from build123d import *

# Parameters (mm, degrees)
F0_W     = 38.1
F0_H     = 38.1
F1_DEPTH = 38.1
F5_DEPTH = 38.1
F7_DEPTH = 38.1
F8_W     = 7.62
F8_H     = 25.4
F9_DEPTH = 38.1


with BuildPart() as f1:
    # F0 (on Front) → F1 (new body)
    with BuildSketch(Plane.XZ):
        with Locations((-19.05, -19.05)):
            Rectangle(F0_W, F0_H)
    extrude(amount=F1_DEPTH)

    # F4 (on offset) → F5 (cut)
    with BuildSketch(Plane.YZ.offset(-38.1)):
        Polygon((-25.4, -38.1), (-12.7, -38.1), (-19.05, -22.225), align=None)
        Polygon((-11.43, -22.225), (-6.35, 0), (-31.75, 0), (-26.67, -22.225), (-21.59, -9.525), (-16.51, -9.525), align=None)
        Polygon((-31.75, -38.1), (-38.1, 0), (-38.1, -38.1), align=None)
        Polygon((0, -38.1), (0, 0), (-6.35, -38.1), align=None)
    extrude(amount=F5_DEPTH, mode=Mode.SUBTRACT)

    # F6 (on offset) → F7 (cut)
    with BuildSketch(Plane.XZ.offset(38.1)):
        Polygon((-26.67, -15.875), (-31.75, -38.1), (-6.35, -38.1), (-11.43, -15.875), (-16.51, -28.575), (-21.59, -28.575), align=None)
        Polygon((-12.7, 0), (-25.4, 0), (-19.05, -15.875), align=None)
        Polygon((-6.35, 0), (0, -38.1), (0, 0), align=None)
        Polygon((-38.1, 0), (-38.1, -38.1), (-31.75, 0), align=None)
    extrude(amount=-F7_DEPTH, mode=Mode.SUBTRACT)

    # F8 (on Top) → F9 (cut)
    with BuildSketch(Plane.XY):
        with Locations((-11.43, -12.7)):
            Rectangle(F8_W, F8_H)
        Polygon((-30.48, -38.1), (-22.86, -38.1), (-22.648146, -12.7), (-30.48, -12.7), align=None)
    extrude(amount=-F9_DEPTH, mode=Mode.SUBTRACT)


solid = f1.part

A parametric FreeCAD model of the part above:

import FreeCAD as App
import Part
import Sketcher
from FreeCAD import Vector
Q = App.Units.Quantity

doc = App.newDocument("Part")
body = doc.addObject("PartDesign::Body", "Body")

sketch1 = body.newObject("Sketcher::SketchObject", "Sketch")
sketch1.AttachmentSupport = (doc.getObject("XZ_Plane"), [""])
sketch1.MapMode = "FlatFace"
sketch1.addGeometry([
    Part.LineSegment(Vector(-38, 0, 0), Vector(-38, -38, 0)),
    Part.LineSegment(Vector(-38, -38, 0), Vector(0, -38, 0)),
    Part.LineSegment(Vector(0, -38, 0), Vector(0, 0, 0)),
    Part.LineSegment(Vector(0, 0, 0), Vector(-38, 0, 0)),
], False)
sketch1.addConstraint([
    Sketcher.Constraint("Coincident", 0, 2, 1, 1),
    Sketcher.Constraint("Coincident", 1, 2, 2, 1),
    Sketcher.Constraint("Coincident", 2, 2, 3, 1),
    Sketcher.Constraint("Coincident", 3, 2, 0, 1),
    Sketcher.Constraint("Vertical", 0),
    Sketcher.Constraint("Horizontal", 1),
    Sketcher.Constraint("Vertical", 2),
    Sketcher.Constraint("Horizontal", 3),
    Sketcher.Constraint("Coincident", 2, 2, -1, 1),
    Sketcher.Constraint("Equal", 3, 0),
    Sketcher.Constraint("DistanceX", 1, 1, 1, 2, Q("1.5 in")),
])
pad1 = body.newObject("PartDesign::Pad", "Pad")
pad1.Profile = sketch1
pad1.Length = Q("1.5 in")

sketch2 = body.newObject("Sketcher::SketchObject", "Sketch001")
sketch2.AttachmentSupport = (doc.getObject("YZ_Plane"), [""])
sketch2.MapMode = "FlatFace"
sketch2.AttachmentOffset = App.Placement(Vector(0, 0, -1.5 * 25.4), App.Rotation())
sketch2.addGeometry([
    Part.LineSegment(Vector(-25, -38, 0), Vector(-13, -38, 0)),
    Part.LineSegment(Vector(-13, -38, 0), Vector(-19, -22, 0)),
    Part.LineSegment(Vector(-19, -22, 0), Vector(-25, -38, 0)),
    Part.LineSegment(Vector(-11, -22, 0), Vector(-6, 0, 0)),
    Part.LineSegment(Vector(-6, 0, 0), Vector(-32, 0, 0)),
    Part.LineSegment(Vector(-32, 0, 0), Vector(-27, -22, 0)),
    Part.LineSegment(Vector(-27, -22, 0), Vector(-22, -10, 0)),
    Part.LineSegment(Vector(-22, -10, 0), Vector(-17, -10, 0)),
    Part.LineSegment(Vector(-17, -10, 0), Vector(-11, -22, 0)),
    Part.LineSegment(Vector(-32, -38, 0), Vector(-38, 0, 0)),
    Part.LineSegment(Vector(-38, 0, 0), Vector(-38, -38, 0)),
    Part.LineSegment(Vector(-38, -38, 0), Vector(-32, -38, 0)),
    Part.LineSegment(Vector(0, -38, 0), Vector(0, 0, 0)),
    Part.LineSegment(Vector(0, 0, 0), Vector(-6, -38, 0)),
    Part.LineSegment(Vector(-6, -38, 0), Vector(0, -38, 0)),
], False)
sketch2.addConstraint([
    Sketcher.Constraint("Coincident", 0, 2, 1, 1),
    Sketcher.Constraint("Coincident", 1, 2, 2, 1),
    Sketcher.Constraint("Coincident", 2, 2, 0, 1),
    Sketcher.Constraint("Coincident", 3, 2, 4, 1),
    Sketcher.Constraint("Coincident", 4, 2, 5, 1),
    Sketcher.Constraint("Coincident", 5, 2, 6, 1),
    Sketcher.Constraint("Coincident", 6, 2, 7, 1),
    Sketcher.Constraint("Coincident", 7, 2, 8, 1),
    Sketcher.Constraint("Coincident", 8, 2, 3, 1),
    Sketcher.Constraint("Coincident", 9, 2, 10, 1),
    Sketcher.Constraint("Coincident", 10, 2, 11, 1),
    Sketcher.Constraint("Coincident", 11, 2, 9, 1),
    Sketcher.Constraint("Coincident", 12, 2, 13, 1),
    Sketcher.Constraint("Coincident", 13, 2, 14, 1),
    Sketcher.Constraint("Coincident", 14, 2, 12, 1),
    Sketcher.Constraint("Horizontal", 0),
    Sketcher.Constraint("Horizontal", 4),
    Sketcher.Constraint("Horizontal", 7),
    Sketcher.Constraint("Vertical", 10),
    Sketcher.Constraint("Horizontal", 11),
    Sketcher.Constraint("Vertical", 12),
    Sketcher.Constraint("Horizontal", 14),
    Sketcher.Constraint("Coincident", 12, 2, -1, 1),
    Sketcher.Constraint("PointOnObject", 3, 2, -1),
    Sketcher.Constraint("PointOnObject", 9, 2, -1),
    Sketcher.Constraint("Parallel", 2, 6),
    Sketcher.Constraint("Parallel", 1, 8),
    Sketcher.Constraint("Horizontal", 1, 2, 5, 2),
    Sketcher.Constraint("Horizontal", 5, 2, 8, 2),
    Sketcher.Constraint("Horizontal", 2, 2, 10, 2),
    Sketcher.Constraint("Horizontal", 11, 2, 13, 2),
    Sketcher.Constraint("Vertical", 4, 2, 11, 2),
    Sketcher.Constraint("Vertical", 3, 2, 13, 2),
    Sketcher.Constraint("Equal", 11, 14),
    Sketcher.Constraint("Equal", 1, 2),
    Sketcher.Constraint("Equal", 3, 5),
    Sketcher.Constraint("DistanceX", 4, 2, 4, 1, Q("1 in")),
    Sketcher.Constraint("DistanceX", 0, 1, 0, 2, Q("0.5 in")),
    Sketcher.Constraint("DistanceX", 7, 1, 7, 2, Q("0.2 in")),
    Sketcher.Constraint("DistanceY", 10, 2, 10, 1, Q("1.5 in")),
    Sketcher.Constraint("DistanceX", 2, 2, -1, 1, Q("1 in")),
    Sketcher.Constraint("DistanceX", 10, 2, 0, 2, Q("1 in")),
    Sketcher.Constraint("DistanceX", 5, 2, 1, 2, Q("0.3 in")),
    Sketcher.Constraint("DistanceY", 1, 2, 6, 2, Q("0.5 in")),
])
pocket1 = body.newObject("PartDesign::Pocket", "Pocket")
pocket1.Profile = sketch2
pocket1.Length = Q("1.5 in")
pocket1.Reversed = True

sketch3 = body.newObject("Sketcher::SketchObject", "Sketch002")
sketch3.AttachmentSupport = (doc.getObject("XZ_Plane"), [""])
sketch3.MapMode = "FlatFace"
sketch3.AttachmentOffset = App.Placement(Vector(0, 0, 1.5 * 25.4), App.Rotation())
sketch3.addGeometry([
    Part.LineSegment(Vector(-27, -16, 0), Vector(-32, -38, 0)),
    Part.LineSegment(Vector(-32, -38, 0), Vector(-6, -38, 0)),
    Part.LineSegment(Vector(-6, -38, 0), Vector(-11, -16, 0)),
    Part.LineSegment(Vector(-11, -16, 0), Vector(-17, -29, 0)),
    Part.LineSegment(Vector(-17, -29, 0), Vector(-22, -29, 0)),
    Part.LineSegment(Vector(-22, -29, 0), Vector(-27, -16, 0)),
    Part.LineSegment(Vector(-13, 0, 0), Vector(-25, 0, 0)),
    Part.LineSegment(Vector(-25, 0, 0), Vector(-19, -16, 0)),
    Part.LineSegment(Vector(-19, -16, 0), Vector(-13, 0, 0)),
    Part.LineSegment(Vector(-6, 0, 0), Vector(0, -38, 0)),
    Part.LineSegment(Vector(0, -38, 0), Vector(0, 0, 0)),
    Part.LineSegment(Vector(0, 0, 0), Vector(-6, 0, 0)),
    Part.LineSegment(Vector(-38, 0, 0), Vector(-38, -38, 0)),
    Part.LineSegment(Vector(-38, -38, 0), Vector(-32, 0, 0)),
    Part.LineSegment(Vector(-32, 0, 0), Vector(-38, 0, 0)),
], False)
sketch3.addConstraint([
    Sketcher.Constraint("Coincident", 0, 2, 1, 1),
    Sketcher.Constraint("Coincident", 1, 2, 2, 1),
    Sketcher.Constraint("Coincident", 2, 2, 3, 1),
    Sketcher.Constraint("Coincident", 3, 2, 4, 1),
    Sketcher.Constraint("Coincident", 4, 2, 5, 1),
    Sketcher.Constraint("Coincident", 5, 2, 0, 1),
    Sketcher.Constraint("Coincident", 6, 2, 7, 1),
    Sketcher.Constraint("Coincident", 7, 2, 8, 1),
    Sketcher.Constraint("Coincident", 8, 2, 6, 1),
    Sketcher.Constraint("Coincident", 9, 2, 10, 1),
    Sketcher.Constraint("Coincident", 10, 2, 11, 1),
    Sketcher.Constraint("Coincident", 11, 2, 9, 1),
    Sketcher.Constraint("Coincident", 12, 2, 13, 1),
    Sketcher.Constraint("Coincident", 13, 2, 14, 1),
    Sketcher.Constraint("Coincident", 14, 2, 12, 1),
    Sketcher.Constraint("Horizontal", 1),
    Sketcher.Constraint("Horizontal", 4),
    Sketcher.Constraint("Horizontal", 6),
    Sketcher.Constraint("Vertical", 10),
    Sketcher.Constraint("Horizontal", 11),
    Sketcher.Constraint("Vertical", 12),
    Sketcher.Constraint("Horizontal", 14),
    Sketcher.Constraint("Coincident", 10, 2, -1, 1),
    Sketcher.Constraint("PointOnObject", 6, 2, -1),
    Sketcher.Constraint("PointOnObject", 13, 2, -1),
    Sketcher.Constraint("Parallel", 5, 7),
    Sketcher.Constraint("Parallel", 3, 8),
    Sketcher.Constraint("Horizontal", 2, 2, 5, 2),
    Sketcher.Constraint("Horizontal", 5, 2, 7, 2),
    Sketcher.Constraint("Horizontal", 1, 2, 9, 2),
    Sketcher.Constraint("Horizontal", 9, 2, 12, 2),
    Sketcher.Constraint("Vertical", 1, 2, 11, 2),
    Sketcher.Constraint("Vertical", 0, 2, 13, 2),
    Sketcher.Constraint("Equal", 11, 14),
    Sketcher.Constraint("Equal", 0, 2),
    Sketcher.Constraint("Equal", 3, 5),
    Sketcher.Constraint("DistanceX", 1, 1, 1, 2, Q("1 in")),
    Sketcher.Constraint("DistanceX", 4, 2, 4, 1, Q("0.2 in")),
    Sketcher.Constraint("DistanceX", 6, 2, 6, 1, Q("0.5 in")),
    Sketcher.Constraint("DistanceY", 10, 1, 10, 2, Q("1.5 in")),
    Sketcher.Constraint("DistanceX", 6, 2, -1, 1, Q("1 in")),
    Sketcher.Constraint("DistanceX", 14, 2, 8, 2, Q("1 in")),
    Sketcher.Constraint("DistanceX", 2, 2, 1, 2, Q("0.2 in")),
    Sketcher.Constraint("DistanceY", 3, 2, 2, 2, Q("0.5 in")),
])
pocket2 = body.newObject("PartDesign::Pocket", "Pocket001")
pocket2.Profile = sketch3
pocket2.Length = Q("1.5 in")

sketch4 = body.newObject("Sketcher::SketchObject", "Sketch003")
sketch4.AttachmentSupport = (doc.getObject("XY_Plane"), [""])
sketch4.MapMode = "FlatFace"
sketch4.addGeometry([
    Part.LineSegment(Vector(-15, 0, 0), Vector(-15, -25, 0)),
    Part.LineSegment(Vector(-15, -25, 0), Vector(-8, -25, 0)),
    Part.LineSegment(Vector(-8, -25, 0), Vector(-8, 0, 0)),
    Part.LineSegment(Vector(-8, 0, 0), Vector(-15, 0, 0)),
    Part.LineSegment(Vector(-30, -38, 0), Vector(-23, -38, 0)),
    Part.LineSegment(Vector(-23, -38, 0), Vector(-23, -13, 0)),
    Part.LineSegment(Vector(-23, -13, 0), Vector(-30, -13, 0)),
    Part.LineSegment(Vector(-30, -13, 0), Vector(-30, -38, 0)),
], False)
sketch4.addConstraint([
    Sketcher.Constraint("Coincident", 0, 2, 1, 1),
    Sketcher.Constraint("Coincident", 1, 2, 2, 1),
    Sketcher.Constraint("Coincident", 2, 2, 3, 1),
    Sketcher.Constraint("Coincident", 3, 2, 0, 1),
    Sketcher.Constraint("Coincident", 4, 2, 5, 1),
    Sketcher.Constraint("Coincident", 5, 2, 6, 1),
    Sketcher.Constraint("Coincident", 6, 2, 7, 1),
    Sketcher.Constraint("Coincident", 7, 2, 4, 1),
    Sketcher.Constraint("Vertical", 0),
    Sketcher.Constraint("Horizontal", 1),
    Sketcher.Constraint("Vertical", 2),
    Sketcher.Constraint("Horizontal", 3),
    Sketcher.Constraint("Horizontal", 4),
    Sketcher.Constraint("Horizontal", 6),
    Sketcher.Constraint("Vertical", 7),
    Sketcher.Constraint("PointOnObject", 2, 2, -1),
    Sketcher.Constraint("Equal", 3, 4),
    Sketcher.Constraint("Equal", 2, 7),
    Sketcher.Constraint("DistanceY", 0, 2, 0, 1, Q("1 in")),
    Sketcher.Constraint("DistanceX", 1, 1, 1, 2, Q("0.3 in")),
    Sketcher.Constraint("DistanceX", 0, 2, -1, 1, Q("0.6 in")),
    Sketcher.Constraint("DistanceX", 4, 2, -1, 1, Q("0.9 in")),
    Sketcher.Constraint("DistanceY", 4, 2, -1, 1, Q("1.5 in")),
    Sketcher.Constraint("DistanceX", 6, 2, 6, 1, 7.831854),
])
pocket3 = body.newObject("PartDesign::Pocket", "Pocket002")
pocket3.Profile = sketch4
pocket3.Length = Q("1.5 in")

doc.recompute()
